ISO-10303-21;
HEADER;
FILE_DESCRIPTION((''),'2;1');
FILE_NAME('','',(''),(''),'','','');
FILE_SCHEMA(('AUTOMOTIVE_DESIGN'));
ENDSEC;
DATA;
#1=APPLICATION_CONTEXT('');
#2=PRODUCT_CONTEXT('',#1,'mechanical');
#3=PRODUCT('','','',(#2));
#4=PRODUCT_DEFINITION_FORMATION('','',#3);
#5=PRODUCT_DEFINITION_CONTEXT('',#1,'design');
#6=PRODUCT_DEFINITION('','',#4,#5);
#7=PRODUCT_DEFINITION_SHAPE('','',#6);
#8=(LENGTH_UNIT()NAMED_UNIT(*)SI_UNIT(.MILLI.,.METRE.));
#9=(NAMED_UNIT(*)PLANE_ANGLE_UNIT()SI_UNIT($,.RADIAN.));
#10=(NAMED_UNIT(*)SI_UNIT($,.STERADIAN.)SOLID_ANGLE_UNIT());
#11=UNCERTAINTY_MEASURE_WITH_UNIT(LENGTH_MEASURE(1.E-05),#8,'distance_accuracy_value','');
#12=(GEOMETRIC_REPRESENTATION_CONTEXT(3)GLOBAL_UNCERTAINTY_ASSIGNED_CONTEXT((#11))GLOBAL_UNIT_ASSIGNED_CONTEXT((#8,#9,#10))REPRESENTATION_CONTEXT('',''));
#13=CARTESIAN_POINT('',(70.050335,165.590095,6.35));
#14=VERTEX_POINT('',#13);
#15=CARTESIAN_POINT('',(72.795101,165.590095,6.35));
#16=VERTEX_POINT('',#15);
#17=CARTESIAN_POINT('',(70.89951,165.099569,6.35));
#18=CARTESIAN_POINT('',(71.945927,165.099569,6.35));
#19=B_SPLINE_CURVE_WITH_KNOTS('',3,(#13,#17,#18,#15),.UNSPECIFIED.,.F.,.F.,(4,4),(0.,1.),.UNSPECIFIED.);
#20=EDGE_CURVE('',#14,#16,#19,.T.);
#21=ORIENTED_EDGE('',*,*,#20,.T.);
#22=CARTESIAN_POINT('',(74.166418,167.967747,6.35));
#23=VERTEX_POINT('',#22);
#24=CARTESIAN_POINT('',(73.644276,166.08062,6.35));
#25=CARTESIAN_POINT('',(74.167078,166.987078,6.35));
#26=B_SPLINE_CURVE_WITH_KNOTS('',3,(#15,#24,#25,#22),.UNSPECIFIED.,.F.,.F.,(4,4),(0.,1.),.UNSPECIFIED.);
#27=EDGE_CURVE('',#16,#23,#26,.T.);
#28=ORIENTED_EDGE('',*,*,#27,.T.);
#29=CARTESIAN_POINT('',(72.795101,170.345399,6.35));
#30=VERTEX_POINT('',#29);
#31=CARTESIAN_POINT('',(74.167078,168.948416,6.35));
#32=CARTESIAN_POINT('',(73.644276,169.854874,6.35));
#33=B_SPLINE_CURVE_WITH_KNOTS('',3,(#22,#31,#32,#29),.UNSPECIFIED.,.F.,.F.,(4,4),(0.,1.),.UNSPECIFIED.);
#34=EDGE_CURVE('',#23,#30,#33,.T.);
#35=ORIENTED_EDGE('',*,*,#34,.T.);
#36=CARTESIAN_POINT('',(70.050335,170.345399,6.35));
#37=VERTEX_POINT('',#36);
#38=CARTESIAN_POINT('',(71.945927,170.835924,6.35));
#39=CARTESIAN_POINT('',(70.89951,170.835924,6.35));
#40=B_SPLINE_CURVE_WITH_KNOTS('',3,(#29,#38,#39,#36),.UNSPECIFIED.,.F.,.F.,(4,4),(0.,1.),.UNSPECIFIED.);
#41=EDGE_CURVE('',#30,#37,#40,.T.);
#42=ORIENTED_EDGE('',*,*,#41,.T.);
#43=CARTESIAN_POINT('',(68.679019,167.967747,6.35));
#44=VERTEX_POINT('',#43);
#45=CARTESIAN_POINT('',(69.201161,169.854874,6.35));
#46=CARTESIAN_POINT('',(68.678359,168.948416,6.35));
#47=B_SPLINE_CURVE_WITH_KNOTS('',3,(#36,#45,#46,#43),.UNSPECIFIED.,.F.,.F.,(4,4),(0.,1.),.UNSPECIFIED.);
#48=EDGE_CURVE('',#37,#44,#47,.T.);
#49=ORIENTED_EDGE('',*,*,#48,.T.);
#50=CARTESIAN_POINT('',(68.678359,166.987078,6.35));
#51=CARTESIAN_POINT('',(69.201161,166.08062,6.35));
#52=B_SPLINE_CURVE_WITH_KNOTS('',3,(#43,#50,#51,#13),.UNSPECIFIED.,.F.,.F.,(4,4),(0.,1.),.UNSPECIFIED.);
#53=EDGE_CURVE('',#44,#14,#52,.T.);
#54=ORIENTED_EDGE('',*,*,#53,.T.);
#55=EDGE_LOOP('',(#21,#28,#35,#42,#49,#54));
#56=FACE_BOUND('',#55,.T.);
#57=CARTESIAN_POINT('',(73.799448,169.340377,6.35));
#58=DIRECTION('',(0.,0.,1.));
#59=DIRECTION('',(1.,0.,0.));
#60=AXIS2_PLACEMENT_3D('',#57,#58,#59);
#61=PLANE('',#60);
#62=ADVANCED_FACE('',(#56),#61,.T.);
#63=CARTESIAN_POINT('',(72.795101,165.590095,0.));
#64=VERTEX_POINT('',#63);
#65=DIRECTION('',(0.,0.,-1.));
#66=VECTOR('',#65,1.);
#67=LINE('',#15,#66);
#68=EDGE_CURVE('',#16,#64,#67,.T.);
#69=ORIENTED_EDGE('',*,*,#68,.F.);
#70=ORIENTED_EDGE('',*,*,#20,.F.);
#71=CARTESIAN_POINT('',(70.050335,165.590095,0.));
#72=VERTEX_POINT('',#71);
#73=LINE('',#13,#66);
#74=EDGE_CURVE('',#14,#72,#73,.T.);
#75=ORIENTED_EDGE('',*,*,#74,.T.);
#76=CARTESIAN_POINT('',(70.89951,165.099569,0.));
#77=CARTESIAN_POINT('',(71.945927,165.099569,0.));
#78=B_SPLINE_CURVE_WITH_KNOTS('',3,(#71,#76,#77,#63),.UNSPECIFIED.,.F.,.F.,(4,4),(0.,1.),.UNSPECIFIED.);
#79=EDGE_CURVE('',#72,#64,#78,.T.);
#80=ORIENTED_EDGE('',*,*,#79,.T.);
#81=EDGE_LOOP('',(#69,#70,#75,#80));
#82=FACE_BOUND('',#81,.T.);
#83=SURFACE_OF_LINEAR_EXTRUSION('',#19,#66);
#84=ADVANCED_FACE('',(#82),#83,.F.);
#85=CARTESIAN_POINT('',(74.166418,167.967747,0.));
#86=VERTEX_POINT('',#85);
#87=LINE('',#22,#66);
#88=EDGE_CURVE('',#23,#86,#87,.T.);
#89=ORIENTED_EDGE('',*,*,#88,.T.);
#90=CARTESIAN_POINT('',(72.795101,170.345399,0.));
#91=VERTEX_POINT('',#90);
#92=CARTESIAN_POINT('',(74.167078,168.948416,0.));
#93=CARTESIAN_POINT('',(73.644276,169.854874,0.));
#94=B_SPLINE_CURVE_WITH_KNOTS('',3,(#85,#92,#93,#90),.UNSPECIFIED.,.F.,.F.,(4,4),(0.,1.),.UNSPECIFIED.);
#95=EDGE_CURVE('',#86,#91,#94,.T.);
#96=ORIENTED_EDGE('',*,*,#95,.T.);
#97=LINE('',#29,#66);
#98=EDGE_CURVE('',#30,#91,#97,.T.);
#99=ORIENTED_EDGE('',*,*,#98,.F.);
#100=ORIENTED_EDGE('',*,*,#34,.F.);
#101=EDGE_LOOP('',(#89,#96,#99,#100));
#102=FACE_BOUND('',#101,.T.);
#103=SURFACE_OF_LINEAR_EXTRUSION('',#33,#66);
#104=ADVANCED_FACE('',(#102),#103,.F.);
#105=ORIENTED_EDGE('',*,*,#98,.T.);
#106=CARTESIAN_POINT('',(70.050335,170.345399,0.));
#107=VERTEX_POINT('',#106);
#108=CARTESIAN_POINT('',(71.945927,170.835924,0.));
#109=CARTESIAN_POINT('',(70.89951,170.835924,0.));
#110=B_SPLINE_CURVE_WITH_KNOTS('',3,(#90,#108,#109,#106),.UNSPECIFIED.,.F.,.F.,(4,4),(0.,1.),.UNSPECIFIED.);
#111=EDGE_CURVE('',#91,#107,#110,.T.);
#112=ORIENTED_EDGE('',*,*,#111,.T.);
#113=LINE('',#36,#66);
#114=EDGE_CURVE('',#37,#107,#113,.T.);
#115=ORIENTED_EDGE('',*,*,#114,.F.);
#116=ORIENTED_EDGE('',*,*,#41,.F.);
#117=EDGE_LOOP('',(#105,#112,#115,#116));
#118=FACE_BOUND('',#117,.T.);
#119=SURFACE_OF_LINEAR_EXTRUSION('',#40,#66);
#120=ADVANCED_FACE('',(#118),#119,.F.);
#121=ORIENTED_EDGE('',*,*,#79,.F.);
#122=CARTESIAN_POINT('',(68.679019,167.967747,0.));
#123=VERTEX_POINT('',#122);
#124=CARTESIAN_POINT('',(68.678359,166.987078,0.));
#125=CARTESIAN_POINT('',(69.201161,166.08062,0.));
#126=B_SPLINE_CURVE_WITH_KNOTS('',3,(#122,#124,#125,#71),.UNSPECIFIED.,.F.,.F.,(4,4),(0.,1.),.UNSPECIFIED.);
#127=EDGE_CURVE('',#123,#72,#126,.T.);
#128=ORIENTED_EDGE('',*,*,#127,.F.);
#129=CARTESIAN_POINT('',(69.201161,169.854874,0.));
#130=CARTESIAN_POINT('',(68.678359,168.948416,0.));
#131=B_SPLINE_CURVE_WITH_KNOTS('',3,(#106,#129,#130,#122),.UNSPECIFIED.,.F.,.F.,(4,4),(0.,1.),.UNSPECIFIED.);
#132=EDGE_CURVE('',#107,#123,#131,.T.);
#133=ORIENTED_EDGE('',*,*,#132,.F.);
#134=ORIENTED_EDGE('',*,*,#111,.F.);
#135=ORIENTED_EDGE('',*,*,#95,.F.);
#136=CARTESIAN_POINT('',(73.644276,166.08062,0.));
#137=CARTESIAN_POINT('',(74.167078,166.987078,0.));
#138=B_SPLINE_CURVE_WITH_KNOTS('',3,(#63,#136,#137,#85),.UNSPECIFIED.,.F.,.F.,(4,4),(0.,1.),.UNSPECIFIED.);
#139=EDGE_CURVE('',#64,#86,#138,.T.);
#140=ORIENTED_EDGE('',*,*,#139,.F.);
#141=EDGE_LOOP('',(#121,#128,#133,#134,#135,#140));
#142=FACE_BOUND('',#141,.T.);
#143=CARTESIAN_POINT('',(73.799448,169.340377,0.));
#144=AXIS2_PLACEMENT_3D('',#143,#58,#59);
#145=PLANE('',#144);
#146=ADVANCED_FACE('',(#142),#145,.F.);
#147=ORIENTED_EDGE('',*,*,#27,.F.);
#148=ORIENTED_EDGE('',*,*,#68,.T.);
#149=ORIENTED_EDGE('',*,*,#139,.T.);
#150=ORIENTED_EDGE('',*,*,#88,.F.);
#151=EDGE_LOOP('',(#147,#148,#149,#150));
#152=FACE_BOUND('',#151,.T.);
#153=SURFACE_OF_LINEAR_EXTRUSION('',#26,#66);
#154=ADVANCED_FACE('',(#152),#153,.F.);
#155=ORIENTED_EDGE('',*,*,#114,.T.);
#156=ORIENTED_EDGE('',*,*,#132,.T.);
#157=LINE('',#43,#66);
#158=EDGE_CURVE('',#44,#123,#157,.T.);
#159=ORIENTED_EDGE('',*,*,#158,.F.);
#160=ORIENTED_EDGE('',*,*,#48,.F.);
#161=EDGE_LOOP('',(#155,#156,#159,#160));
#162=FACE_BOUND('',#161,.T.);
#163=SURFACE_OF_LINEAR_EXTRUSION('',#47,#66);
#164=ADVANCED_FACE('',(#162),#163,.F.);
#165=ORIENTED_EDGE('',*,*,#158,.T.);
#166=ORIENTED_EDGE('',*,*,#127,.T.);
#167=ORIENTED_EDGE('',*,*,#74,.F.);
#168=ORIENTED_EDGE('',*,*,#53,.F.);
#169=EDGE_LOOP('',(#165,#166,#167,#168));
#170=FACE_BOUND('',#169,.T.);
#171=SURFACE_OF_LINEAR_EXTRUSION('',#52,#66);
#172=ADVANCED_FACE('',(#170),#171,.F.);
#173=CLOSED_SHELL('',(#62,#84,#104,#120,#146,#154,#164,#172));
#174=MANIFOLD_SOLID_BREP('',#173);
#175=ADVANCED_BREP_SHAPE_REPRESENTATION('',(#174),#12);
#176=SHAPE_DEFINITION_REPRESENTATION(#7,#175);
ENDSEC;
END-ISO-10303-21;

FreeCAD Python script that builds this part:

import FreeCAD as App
import Part
import Sketcher
from FreeCAD import Vector
Q = App.Units.Quantity

doc = App.newDocument("Part")
body = doc.addObject("PartDesign::Body", "Body")

sketch1 = body.newObject("Sketcher::SketchObject", "Sketch")
sketch1.AttachmentSupport = (doc.getObject("XY_Plane"), [""])
sketch1.MapMode = "FlatFace"
sketch1.addGeometry([
    Part.BSplineCurve([Vector(74.166418, 167.967747, 0), Vector(74.167078, 166.987078, 0), Vector(73.644276, 166.08062, 0), Vector(72.795101, 165.590095, 0)], [4, 4], [0, 1], False, 3, [1, 1, 1, 1], False),
    Part.BSplineCurve([Vector(72.795101, 170.345399, 0), Vector(73.644276, 169.854874, 0), Vector(74.167078, 168.948416, 0), Vector(74.166418, 167.967747, 0)], [4, 4], [0, 1], False, 3, [1, 1, 1, 1], False),
    Part.BSplineCurve([Vector(70.050335, 170.345399, 0), Vector(70.89951, 170.835924, 0), Vector(71.945927, 170.835924, 0), Vector(72.795101, 170.345399, 0)], [4, 4], [0, 1], False, 3, [1, 1, 1, 1], False),
    Part.BSplineCurve([Vector(68.679019, 167.967747, 0), Vector(68.678359, 168.948416, 0), Vector(69.201161, 169.854874, 0), Vector(70.050335, 170.345399, 0)], [4, 4], [0, 1], False, 3, [1, 1, 1, 1], False),
    Part.BSplineCurve([Vector(70.050335, 165.590095, 0), Vector(69.201161, 166.08062, 0), Vector(68.678359, 166.987078, 0), Vector(68.679019, 167.967747, 0)], [4, 4], [0, 1], False, 3, [1, 1, 1, 1], False),
    Part.BSplineCurve([Vector(72.795101, 165.590095, 0), Vector(71.945927, 165.099569, 0), Vector(70.89951, 165.099569, 0), Vector(70.050335, 165.590095, 0)], [4, 4], [0, 1], False, 3, [1, 1, 1, 1], False),
], False)
sketch1.addConstraint([
    Sketcher.Constraint("Block", 0),
    Sketcher.Constraint("Block", 1),
    Sketcher.Constraint("Block", 2),
    Sketcher.Constraint("Block", 3),
    Sketcher.Constraint("Block", 4),
    Sketcher.Constraint("Block", 5),
])
pad1 = body.newObject("PartDesign::Pad", "Pad")
pad1.Profile = sketch1
pad1.Length = Q("0.25 in")

doc.recompute()
